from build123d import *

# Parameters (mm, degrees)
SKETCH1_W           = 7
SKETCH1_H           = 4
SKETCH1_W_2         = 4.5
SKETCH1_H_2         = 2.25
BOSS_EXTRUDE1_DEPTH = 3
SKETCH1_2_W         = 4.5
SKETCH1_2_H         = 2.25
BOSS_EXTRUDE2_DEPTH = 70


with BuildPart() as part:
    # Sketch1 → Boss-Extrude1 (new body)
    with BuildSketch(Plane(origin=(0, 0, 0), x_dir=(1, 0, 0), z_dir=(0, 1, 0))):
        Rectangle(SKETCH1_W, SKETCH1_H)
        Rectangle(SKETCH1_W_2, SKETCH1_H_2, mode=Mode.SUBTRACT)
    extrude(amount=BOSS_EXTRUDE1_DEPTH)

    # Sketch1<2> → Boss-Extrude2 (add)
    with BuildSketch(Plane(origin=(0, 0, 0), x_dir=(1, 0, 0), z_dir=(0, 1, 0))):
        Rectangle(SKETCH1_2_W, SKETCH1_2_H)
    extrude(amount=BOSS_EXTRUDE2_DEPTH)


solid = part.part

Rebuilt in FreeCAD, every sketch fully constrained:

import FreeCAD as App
import Part
import Sketcher

V = App.Vector


def add_polygon(sketch, points):
    """Adds a closed chain of lines whose ends are joined by coincident constraints."""
    first, n = sketch.GeometryCount, len(points)
    for a, b in zip(points, points[1:] + points[:1]):
        sketch.addGeometry(Part.LineSegment(App.Vector(*a, 0), App.Vector(*b, 0)), False)
    for i in range(n):
        sketch.addConstraint(Sketcher.Constraint("Coincident", first + i, 2, first + (i + 1) % n, 1))

doc = App.newDocument("Part")
body = doc.addObject("PartDesign::Body", "Body")

# Sketch on XZ plane
sketch1 = body.newObject("Sketcher::SketchObject", "Sketch")
sketch1.AttachmentSupport = (doc.getObject("XZ_Plane"), [""])
sketch1.MapMode = "FlatFace"
add_polygon(sketch1, [(-3.5, -2), (-3.5, 2), (3.5, 2), (3.5, -2)])  # lines 0-3
add_polygon(sketch1, [(2.2, 1.1), (-2.2, 1.1), (-2.2, -1.1), (2.2, -1.1)])  # lines 4-7
sketch1.addConstraint([
    Sketcher.Constraint("Vertical", 0),
    Sketcher.Constraint("Horizontal", 1),
    Sketcher.Constraint("Vertical", 2),
    Sketcher.Constraint("Horizontal", 3),
    Sketcher.Constraint("Horizontal", 4),
    Sketcher.Constraint("Vertical", 5),
    Sketcher.Constraint("Horizontal", 6),
    Sketcher.Constraint("Vertical", 7),
    Sketcher.Constraint("Symmetric", 0, 2, 2, 2, -1, 1),
    Sketcher.Constraint("Symmetric", 4, 2, 6, 2, -1, 1),
    Sketcher.Constraint("DistanceX", 1, 1, 1, 2, 7.0),
    Sketcher.Constraint("DistanceY", 0, 1, 0, 2, 4.0),
    Sketcher.Constraint("DistanceX", 4, 2, 4, 1, 4.5),
    Sketcher.Constraint("DistanceY", 5, 2, 5, 1, 2.25),
])
pad1 = body.newObject("PartDesign::Pad", "Pad")
pad1.Profile = sketch1
pad1.Length = 3
pad1.Reversed = True

# Sketch on XZ plane
sketch2 = body.newObject("Sketcher::SketchObject", "Sketch001")
sketch2.AttachmentSupport = (doc.getObject("XZ_Plane"), [""])
sketch2.MapMode = "FlatFace"
add_polygon(sketch2, [(-2.2, -1.1), (-2.2, 1.1), (2.2, 1.1), (2.2, -1.1)])  # lines 0-3
sketch2.addConstraint([
    Sketcher.Constraint("Vertical", 0),
    Sketcher.Constraint("Horizontal", 1),
    Sketcher.Constraint("Vertical", 2),
    Sketcher.Constraint("Horizontal", 3),
    Sketcher.Constraint("Symmetric", 0, 2, 2, 2, -1, 1),
    Sketcher.Constraint("DistanceX", 1, 1, 1, 2, 4.5),
    Sketcher.Constraint("DistanceY", 0, 1, 0, 2, 2.25),
])
pad2 = body.newObject("PartDesign::Pad", "Pad001")
pad2.Profile = sketch2
pad2.Length = 70
pad2.Reversed = True

doc.recompute()
